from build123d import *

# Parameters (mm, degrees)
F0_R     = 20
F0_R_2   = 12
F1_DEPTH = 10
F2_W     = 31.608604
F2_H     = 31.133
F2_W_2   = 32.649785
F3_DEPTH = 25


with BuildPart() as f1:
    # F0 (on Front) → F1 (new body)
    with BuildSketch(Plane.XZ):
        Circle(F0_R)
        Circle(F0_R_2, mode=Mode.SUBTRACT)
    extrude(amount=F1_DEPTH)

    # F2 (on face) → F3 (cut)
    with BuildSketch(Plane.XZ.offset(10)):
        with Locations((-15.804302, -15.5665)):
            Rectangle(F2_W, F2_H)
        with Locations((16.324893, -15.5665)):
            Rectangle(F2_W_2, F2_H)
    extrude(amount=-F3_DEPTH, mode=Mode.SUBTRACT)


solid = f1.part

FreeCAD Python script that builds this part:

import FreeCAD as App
import Part
import Sketcher
Q = App.Units.Quantity


def add_polygon(sketch, points):
    """Adds a closed chain of lines whose ends are joined by coincident constraints."""
    first, n = sketch.GeometryCount, len(points)
    for a, b in zip(points, points[1:] + points[:1]):
        sketch.addGeometry(Part.LineSegment(App.Vector(*a, 0), App.Vector(*b, 0)), False)
    for i in range(n):
        sketch.addConstraint(Sketcher.Constraint("Coincident", first + i, 2, first + (i + 1) % n, 1))

doc = App.newDocument("Part")
body = doc.addObject("PartDesign::Body", "Body")

# Sketch on XZ plane
sketch1 = body.newObject("Sketcher::SketchObject", "Sketch")
sketch1.AttachmentSupport = (doc.getObject("XZ_Plane"), [""])
sketch1.MapMode = "FlatFace"
sketch1.addGeometry([
    Part.Circle(App.Vector(0, 0, 0), App.Vector(0, 0, 1), 20),
    Part.Circle(App.Vector(0, 0, 0), App.Vector(0, 0, 1), 12),
], False)
sketch1.addConstraint([
    Sketcher.Constraint("Coincident", 0, 3, -1, 1),
    Sketcher.Constraint("Coincident", 1, 3, -1, 1),
    Sketcher.Constraint("Diameter", 0, Q("40 mm")),
    Sketcher.Constraint("Diameter", 1, Q("24 mm")),
])
pad1 = body.newObject("PartDesign::Pad", "Pad")
pad1.Profile = sketch1
pad1.Length = 10

# Sketch on XZ plane
sketch2 = body.newObject("Sketcher::SketchObject", "Sketch001")
sketch2.AttachmentSupport = (doc.getObject("XZ_Plane"), [""])
sketch2.MapMode = "FlatFace"
sketch2.AttachmentOffset = App.Placement(App.Vector(0, 0, 10), App.Rotation())
add_polygon(sketch2, [(-32, 0), (-32, -31), (0, -31), (0, 0)])  # lines 0-3
add_polygon(sketch2, [(0, 0), (0, -31), (33, -31), (33, 0)])  # lines 4-7
sketch2.addConstraint([
    Sketcher.Constraint("Vertical", 0),
    Sketcher.Constraint("Horizontal", 1),
    Sketcher.Constraint("Vertical", 2),
    Sketcher.Constraint("Horizontal", 3),
    Sketcher.Constraint("Vertical", 4),
    Sketcher.Constraint("Horizontal", 5),
    Sketcher.Constraint("Vertical", 6),
    Sketcher.Constraint("Horizontal", 7),
    Sketcher.Constraint("Coincident", 2, 2, -1, 1),
    Sketcher.Constraint("Coincident", 7, 2, -1, 1),
    Sketcher.Constraint("Horizontal", 0, 2, 4, 2),
    Sketcher.Constraint("DistanceY", 0, 2, 0, 1, Q("31.133 mm")),
    Sketcher.Constraint("DistanceX", 1, 1, 1, 2, Q("31.608604 mm")),
    Sketcher.Constraint("DistanceX", 5, 1, 5, 2, Q("32.649785 mm")),
])
pocket1 = body.newObject("PartDesign::Pocket", "Pocket")
pocket1.Profile = sketch2
pocket1.Length = 25

doc.recompute()
